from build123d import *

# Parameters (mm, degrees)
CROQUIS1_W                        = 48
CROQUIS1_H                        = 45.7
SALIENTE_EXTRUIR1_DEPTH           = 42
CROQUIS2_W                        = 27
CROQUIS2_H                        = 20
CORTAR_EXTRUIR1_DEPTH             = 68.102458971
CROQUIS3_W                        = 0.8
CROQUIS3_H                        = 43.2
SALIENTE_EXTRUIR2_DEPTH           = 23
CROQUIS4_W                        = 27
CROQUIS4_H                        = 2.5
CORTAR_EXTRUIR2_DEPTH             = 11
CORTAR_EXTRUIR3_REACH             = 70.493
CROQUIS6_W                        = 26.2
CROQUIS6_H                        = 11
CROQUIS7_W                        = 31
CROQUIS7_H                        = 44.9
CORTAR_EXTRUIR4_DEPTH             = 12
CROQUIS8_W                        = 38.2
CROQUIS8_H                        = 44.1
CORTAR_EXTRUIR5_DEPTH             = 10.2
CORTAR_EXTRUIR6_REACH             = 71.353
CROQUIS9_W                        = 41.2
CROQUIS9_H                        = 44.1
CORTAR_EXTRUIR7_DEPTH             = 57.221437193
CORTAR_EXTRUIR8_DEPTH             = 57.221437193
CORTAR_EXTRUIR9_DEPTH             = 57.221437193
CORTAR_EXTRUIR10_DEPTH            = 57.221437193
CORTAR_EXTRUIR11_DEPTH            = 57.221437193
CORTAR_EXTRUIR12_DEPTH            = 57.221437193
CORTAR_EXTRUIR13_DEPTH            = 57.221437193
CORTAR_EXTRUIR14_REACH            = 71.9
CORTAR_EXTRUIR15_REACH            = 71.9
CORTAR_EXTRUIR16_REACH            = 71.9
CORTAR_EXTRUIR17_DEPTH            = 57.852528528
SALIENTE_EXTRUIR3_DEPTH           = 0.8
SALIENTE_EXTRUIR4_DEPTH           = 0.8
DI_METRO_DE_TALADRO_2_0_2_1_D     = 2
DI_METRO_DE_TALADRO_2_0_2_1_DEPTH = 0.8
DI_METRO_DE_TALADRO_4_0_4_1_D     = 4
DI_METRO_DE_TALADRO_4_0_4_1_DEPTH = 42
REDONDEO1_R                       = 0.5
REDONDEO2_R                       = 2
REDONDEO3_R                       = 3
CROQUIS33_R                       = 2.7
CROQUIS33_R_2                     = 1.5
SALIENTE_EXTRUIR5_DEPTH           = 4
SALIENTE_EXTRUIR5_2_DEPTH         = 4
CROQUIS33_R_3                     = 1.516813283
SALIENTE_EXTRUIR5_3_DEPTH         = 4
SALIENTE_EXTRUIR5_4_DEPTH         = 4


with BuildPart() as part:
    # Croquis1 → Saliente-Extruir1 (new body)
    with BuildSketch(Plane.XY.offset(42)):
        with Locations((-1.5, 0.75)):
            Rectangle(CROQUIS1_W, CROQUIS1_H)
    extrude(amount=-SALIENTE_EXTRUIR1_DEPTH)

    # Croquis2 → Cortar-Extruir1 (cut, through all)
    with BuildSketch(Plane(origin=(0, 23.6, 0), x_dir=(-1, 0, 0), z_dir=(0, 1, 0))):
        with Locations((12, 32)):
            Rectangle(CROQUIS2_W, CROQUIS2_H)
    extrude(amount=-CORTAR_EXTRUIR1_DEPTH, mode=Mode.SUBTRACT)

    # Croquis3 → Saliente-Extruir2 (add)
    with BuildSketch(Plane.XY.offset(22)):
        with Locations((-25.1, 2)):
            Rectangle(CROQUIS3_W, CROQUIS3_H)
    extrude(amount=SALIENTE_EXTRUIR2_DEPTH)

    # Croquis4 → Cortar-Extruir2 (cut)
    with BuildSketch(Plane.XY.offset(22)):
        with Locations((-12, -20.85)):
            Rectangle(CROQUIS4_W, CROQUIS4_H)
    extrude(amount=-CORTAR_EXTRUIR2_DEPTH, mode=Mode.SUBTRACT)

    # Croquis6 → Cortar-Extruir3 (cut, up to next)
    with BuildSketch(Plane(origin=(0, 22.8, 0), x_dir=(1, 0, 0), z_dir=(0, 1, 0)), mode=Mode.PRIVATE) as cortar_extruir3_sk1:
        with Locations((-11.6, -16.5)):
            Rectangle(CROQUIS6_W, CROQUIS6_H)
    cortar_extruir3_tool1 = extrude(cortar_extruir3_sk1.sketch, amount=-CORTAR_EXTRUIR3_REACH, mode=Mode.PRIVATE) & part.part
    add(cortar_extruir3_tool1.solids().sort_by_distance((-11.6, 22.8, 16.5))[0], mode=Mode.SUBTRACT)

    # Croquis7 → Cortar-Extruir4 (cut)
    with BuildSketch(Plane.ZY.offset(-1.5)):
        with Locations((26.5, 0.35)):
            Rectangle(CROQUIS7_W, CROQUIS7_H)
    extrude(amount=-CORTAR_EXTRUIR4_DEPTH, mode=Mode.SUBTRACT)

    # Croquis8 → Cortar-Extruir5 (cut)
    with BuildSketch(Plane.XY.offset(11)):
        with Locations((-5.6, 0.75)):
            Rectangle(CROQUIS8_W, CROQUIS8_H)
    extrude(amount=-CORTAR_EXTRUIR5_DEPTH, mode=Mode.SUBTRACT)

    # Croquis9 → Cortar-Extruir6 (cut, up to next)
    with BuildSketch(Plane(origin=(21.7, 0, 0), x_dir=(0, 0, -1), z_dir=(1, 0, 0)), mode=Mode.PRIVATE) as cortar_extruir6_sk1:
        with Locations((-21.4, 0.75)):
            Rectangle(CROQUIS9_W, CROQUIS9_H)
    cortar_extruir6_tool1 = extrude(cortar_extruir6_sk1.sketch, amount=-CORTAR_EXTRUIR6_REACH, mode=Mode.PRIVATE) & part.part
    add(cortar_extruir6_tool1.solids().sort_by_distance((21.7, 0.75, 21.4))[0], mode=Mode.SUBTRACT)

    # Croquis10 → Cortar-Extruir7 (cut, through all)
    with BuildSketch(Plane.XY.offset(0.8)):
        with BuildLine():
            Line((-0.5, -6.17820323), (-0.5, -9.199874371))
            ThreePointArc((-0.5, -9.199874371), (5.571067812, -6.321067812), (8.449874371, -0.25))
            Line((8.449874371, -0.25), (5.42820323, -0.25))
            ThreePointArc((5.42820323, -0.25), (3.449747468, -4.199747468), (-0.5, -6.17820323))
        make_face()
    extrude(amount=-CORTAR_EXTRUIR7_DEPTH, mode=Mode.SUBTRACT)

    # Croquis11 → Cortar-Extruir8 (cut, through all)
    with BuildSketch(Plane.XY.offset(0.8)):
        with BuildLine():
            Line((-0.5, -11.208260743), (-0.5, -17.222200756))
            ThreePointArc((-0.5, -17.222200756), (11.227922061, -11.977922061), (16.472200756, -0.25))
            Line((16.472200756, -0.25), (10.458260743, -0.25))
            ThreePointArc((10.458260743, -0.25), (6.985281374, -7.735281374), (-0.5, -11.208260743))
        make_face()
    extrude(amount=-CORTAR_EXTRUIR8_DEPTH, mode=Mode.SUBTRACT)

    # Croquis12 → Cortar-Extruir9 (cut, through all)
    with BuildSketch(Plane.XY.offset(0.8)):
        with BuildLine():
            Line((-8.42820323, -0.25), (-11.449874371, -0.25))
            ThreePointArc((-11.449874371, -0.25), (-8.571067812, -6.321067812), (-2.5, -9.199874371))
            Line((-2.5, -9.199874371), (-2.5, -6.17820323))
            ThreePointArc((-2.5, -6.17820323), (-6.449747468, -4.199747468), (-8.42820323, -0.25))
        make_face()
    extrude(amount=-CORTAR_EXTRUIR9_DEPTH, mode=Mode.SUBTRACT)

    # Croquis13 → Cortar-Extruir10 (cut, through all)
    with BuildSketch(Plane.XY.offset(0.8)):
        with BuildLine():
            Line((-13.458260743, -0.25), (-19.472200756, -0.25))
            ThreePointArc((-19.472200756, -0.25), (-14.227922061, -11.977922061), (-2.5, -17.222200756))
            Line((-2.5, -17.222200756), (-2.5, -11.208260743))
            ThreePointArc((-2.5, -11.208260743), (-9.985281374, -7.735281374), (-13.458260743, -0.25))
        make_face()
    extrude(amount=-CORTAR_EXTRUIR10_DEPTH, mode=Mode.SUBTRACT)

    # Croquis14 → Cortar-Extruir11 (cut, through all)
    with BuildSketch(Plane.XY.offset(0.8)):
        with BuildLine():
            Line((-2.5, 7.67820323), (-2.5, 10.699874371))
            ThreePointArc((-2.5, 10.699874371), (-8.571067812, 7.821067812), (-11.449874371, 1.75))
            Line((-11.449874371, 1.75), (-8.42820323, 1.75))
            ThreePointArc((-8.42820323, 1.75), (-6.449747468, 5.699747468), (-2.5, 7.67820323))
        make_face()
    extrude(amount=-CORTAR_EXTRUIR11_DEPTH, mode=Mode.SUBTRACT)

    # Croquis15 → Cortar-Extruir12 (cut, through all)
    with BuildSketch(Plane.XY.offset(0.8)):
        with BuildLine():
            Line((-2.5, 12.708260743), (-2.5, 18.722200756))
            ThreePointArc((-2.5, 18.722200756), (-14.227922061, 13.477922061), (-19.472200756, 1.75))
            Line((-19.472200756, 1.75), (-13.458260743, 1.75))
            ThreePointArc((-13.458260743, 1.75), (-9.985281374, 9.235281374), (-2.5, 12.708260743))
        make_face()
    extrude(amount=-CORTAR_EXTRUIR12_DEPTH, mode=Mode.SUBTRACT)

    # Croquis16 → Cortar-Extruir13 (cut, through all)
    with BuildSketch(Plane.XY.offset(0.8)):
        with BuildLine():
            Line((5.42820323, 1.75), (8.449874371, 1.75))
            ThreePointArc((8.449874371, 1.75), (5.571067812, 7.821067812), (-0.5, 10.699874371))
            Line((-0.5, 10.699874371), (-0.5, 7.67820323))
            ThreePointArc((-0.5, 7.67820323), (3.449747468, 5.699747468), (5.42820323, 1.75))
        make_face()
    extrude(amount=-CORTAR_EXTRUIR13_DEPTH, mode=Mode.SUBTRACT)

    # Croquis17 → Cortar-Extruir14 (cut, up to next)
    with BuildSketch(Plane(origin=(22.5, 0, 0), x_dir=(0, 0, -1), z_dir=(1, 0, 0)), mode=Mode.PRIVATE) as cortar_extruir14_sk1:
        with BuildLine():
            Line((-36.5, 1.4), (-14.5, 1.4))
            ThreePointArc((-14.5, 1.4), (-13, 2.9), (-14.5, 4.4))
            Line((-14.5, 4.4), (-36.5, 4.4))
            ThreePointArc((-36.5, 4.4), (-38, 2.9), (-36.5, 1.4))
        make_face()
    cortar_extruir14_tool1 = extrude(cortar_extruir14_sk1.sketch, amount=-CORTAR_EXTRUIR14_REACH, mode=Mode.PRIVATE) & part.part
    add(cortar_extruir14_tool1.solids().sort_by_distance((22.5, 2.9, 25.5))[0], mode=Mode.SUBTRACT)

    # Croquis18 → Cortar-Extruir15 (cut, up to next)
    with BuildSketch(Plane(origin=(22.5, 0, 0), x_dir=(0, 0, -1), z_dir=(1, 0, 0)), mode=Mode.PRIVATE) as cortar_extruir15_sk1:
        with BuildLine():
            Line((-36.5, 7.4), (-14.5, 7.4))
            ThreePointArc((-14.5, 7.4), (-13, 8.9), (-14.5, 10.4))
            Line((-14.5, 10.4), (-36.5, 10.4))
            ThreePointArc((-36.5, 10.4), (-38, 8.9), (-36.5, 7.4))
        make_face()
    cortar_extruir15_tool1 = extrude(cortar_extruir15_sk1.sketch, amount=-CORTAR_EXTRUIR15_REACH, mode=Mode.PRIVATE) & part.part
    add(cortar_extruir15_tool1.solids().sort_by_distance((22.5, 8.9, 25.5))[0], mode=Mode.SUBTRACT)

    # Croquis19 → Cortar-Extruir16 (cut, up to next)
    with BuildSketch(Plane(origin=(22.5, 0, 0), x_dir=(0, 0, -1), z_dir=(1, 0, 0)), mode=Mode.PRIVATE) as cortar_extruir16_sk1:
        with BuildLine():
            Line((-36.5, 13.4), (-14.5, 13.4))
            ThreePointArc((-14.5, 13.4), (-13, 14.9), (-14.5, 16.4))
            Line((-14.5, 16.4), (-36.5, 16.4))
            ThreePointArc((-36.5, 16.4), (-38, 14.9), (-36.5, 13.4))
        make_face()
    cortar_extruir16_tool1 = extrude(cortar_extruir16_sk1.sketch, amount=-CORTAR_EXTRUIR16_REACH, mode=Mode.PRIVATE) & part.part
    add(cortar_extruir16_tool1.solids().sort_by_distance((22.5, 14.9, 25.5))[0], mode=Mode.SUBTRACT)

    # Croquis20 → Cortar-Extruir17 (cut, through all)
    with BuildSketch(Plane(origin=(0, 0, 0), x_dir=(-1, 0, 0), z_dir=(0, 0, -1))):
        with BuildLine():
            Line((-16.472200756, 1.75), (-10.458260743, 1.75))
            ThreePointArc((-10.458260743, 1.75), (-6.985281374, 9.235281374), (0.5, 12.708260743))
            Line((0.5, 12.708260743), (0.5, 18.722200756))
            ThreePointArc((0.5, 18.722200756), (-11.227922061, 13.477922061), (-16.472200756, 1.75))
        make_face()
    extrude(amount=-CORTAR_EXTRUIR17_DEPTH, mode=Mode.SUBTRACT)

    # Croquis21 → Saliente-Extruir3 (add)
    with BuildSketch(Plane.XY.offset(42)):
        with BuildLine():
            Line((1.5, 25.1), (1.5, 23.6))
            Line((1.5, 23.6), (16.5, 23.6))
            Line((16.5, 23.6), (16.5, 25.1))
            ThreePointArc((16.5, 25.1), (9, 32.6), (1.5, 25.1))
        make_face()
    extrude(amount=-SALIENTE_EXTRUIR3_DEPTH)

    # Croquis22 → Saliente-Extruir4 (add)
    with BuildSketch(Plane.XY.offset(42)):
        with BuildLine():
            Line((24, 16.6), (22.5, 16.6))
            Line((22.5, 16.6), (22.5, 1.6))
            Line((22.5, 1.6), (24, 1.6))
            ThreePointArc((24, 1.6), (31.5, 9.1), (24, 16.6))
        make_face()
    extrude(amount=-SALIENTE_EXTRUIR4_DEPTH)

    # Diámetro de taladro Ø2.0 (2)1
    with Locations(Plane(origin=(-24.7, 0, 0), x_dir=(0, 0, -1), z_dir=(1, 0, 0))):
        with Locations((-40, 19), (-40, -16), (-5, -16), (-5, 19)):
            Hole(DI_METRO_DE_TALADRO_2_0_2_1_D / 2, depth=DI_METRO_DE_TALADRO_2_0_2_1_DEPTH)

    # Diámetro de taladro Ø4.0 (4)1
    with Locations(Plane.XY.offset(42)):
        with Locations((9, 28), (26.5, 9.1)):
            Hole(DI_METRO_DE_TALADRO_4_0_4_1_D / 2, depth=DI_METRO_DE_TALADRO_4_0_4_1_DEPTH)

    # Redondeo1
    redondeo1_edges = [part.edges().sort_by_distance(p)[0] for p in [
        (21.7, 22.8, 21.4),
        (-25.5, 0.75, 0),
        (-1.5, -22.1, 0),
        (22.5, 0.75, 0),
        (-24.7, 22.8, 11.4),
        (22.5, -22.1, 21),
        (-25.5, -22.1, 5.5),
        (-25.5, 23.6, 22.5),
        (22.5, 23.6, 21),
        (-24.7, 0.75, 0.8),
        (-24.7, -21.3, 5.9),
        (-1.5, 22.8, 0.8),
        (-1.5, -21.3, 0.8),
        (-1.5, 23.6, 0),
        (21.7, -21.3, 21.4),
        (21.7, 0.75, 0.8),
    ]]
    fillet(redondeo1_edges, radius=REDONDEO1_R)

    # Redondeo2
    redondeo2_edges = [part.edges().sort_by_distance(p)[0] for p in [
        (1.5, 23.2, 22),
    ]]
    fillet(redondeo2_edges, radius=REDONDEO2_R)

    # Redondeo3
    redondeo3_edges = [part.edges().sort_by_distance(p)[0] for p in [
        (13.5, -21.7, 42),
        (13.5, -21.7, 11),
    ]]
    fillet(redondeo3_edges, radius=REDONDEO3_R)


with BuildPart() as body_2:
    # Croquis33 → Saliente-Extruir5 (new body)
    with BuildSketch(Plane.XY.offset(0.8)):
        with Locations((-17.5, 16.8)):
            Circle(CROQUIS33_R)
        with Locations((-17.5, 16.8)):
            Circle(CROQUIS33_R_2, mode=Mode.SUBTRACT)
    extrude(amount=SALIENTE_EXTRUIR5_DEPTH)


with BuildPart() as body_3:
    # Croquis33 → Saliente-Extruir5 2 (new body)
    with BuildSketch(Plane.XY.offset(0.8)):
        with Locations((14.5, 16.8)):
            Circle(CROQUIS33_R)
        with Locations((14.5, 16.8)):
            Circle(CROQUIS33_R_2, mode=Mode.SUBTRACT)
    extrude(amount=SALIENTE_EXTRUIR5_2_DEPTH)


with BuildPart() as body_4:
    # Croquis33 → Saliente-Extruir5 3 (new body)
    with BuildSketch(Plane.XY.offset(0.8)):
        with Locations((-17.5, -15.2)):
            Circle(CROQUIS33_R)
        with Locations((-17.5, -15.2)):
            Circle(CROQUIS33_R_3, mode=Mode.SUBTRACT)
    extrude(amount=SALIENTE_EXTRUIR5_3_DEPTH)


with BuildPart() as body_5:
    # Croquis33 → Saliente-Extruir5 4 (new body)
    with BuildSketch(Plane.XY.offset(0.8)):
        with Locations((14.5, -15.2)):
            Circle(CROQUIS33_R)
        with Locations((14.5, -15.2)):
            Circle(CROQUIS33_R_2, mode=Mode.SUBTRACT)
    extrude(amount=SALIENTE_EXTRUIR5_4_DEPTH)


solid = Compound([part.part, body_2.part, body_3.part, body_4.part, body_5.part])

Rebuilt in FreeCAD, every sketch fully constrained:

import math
import FreeCAD as App
import Part
import Sketcher

V = App.Vector
Q = App.Units.Quantity


def edges_at(feature, points):
    """Names of the edges that pass closest to the given points."""
    edges = feature.Shape.Edges
    near = lambda p: min(range(len(edges)), key=lambda i: edges[i].distToShape(Part.Vertex(*p))[0])
    return sorted({f"Edge{near(p) + 1}" for p in points})

doc = App.newDocument("Part")
body = doc.addObject("PartDesign::Body", "Body")

# Sketch on XY plane
sketch1 = body.newObject("Sketcher::SketchObject", "Sketch")
sketch1.AttachmentSupport = (doc.getObject("XY_Plane"), [""])
sketch1.MapMode = "FlatFace"
sketch1.AttachmentOffset = App.Placement(V(0, 0, 42), App.Rotation())
sketch1.addGeometry([
    Part.LineSegment(V(-25.5, 23.6, 0), V(-25.5, -22.1, 0)),
    Part.LineSegment(V(-25.5, -22.1, 0), V(22.5, -22.1, 0)),
    Part.LineSegment(V(22.5, -22.1, 0), V(22.5, 23.6, 0)),
    Part.LineSegment(V(22.5, 23.6, 0), V(-25.5, 23.6, 0)),
], False)
sketch1.addConstraint([
    Sketcher.Constraint("Coincident", 0, 2, 1, 1),
    Sketcher.Constraint("Coincident", 1, 2, 2, 1),
    Sketcher.Constraint("Coincident", 2, 2, 3, 1),
    Sketcher.Constraint("Coincident", 3, 2, 0, 1),
    Sketcher.Constraint("Vertical", 0),
    Sketcher.Constraint("Horizontal", 1),
    Sketcher.Constraint("Vertical", 2),
    Sketcher.Constraint("Horizontal", 3),
    Sketcher.Constraint("DistanceX", 1, 1, 1, 2, Q("48 mm")),
    Sketcher.Constraint("DistanceY", 0, 2, 0, 1, Q("45.7 mm")),
    Sketcher.Constraint("DistanceX", 0, 2, -1, 1, Q("25.5 mm")),
    Sketcher.Constraint("DistanceY", 0, 2, -1, 1, Q("22.1 mm")),
])
pad1 = body.newObject("PartDesign::Pad", "Pad")
pad1.Profile = sketch1
pad1.Length = 42
pad1.Reversed = True

# Sketch on XZ plane
sketch2 = body.newObject("Sketcher::SketchObject", "Sketch001")
sketch2.AttachmentSupport = (doc.getObject("XZ_Plane"), [""])
sketch2.MapMode = "FlatFace"
sketch2.AttachmentOffset = App.Placement(V(0, 0, -23.6), App.Rotation())
sketch2.addGeometry([
    Part.LineSegment(V(1.5, 42, 0), V(1.5, 22, 0)),
    Part.LineSegment(V(1.5, 22, 0), V(-25.5, 22, 0)),
    Part.LineSegment(V(-25.5, 22, 0), V(-25.5, 42, 0)),
    Part.LineSegment(V(-25.5, 42, 0), V(1.5, 42, 0)),
], False)
sketch2.addConstraint([
    Sketcher.Constraint("Coincident", 0, 2, 1, 1),
    Sketcher.Constraint("Coincident", 1, 2, 2, 1),
    Sketcher.Constraint("Coincident", 2, 2, 3, 1),
    Sketcher.Constraint("Coincident", 3, 2, 0, 1),
    Sketcher.Constraint("Vertical", 0),
    Sketcher.Constraint("Horizontal", 1),
    Sketcher.Constraint("Vertical", 2),
    Sketcher.Constraint("Horizontal", 3),
    Sketcher.Constraint("DistanceX", 1, 2, 1, 1, Q("27 mm")),
    Sketcher.Constraint("DistanceY", 0, 2, 0, 1, Q("20 mm")),
    Sketcher.Constraint("DistanceY", -1, 1, 0, 2, Q("22 mm")),
    Sketcher.Constraint("DistanceX", -1, 1, 0, 2, Q("1.5 mm")),
])
pocket1 = body.newObject("PartDesign::Pocket", "Pocket")
pocket1.Profile = sketch2
pocket1.Type = "ThroughAll"
pocket1.Reversed = True

# Sketch on XY plane
sketch3 = body.newObject("Sketcher::SketchObject", "Sketch002")
sketch3.AttachmentSupport = (doc.getObject("XY_Plane"), [""])
sketch3.MapMode = "FlatFace"
sketch3.AttachmentOffset = App.Placement(V(0, 0, 22), App.Rotation())
sketch3.addGeometry([
    Part.LineSegment(V(-25.5, 23.6, 0), V(-25.5, -19.6, 0)),
    Part.LineSegment(V(-25.5, -19.6, 0), V(-24.7, -19.6, 0)),
    Part.LineSegment(V(-24.7, -19.6, 0), V(-24.7, 23.6, 0)),
    Part.LineSegment(V(-24.7, 23.6, 0), V(-25.5, 23.6, 0)),
], False)
sketch3.addConstraint([
    Sketcher.Constraint("Coincident", 0, 2, 1, 1),
    Sketcher.Constraint("Coincident", 1, 2, 2, 1),
    Sketcher.Constraint("Coincident", 2, 2, 3, 1),
    Sketcher.Constraint("Coincident", 3, 2, 0, 1),
    Sketcher.Constraint("Vertical", 0),
    Sketcher.Constraint("Horizontal", 1),
    Sketcher.Constraint("Vertical", 2),
    Sketcher.Constraint("Horizontal", 3),
    Sketcher.Constraint("DistanceX", 1, 1, 1, 2, Q("0.8 mm")),
    Sketcher.Constraint("DistanceY", 0, 2, 0, 1, Q("43.2 mm")),
    Sketcher.Constraint("DistanceX", 0, 2, -1, 1, Q("25.5 mm")),
    Sketcher.Constraint("DistanceY", 0, 2, -1, 1, Q("19.6 mm")),
])
pad2 = body.newObject("PartDesign::Pad", "Pad001")
pad2.Profile = sketch3
pad2.Length = 23

# Sketch on XY plane
sketch4 = body.newObject("Sketcher::SketchObject", "Sketch003")
sketch4.AttachmentSupport = (doc.getObject("XY_Plane"), [""])
sketch4.MapMode = "FlatFace"
sketch4.AttachmentOffset = App.Placement(V(0, 0, 22), App.Rotation())
sketch4.addGeometry([
    Part.LineSegment(V(-25.5, -19.6, 0), V(-25.5, -22.1, 0)),
    Part.LineSegment(V(-25.5, -22.1, 0), V(1.5, -22.1, 0)),
    Part.LineSegment(V(1.5, -22.1, 0), V(1.5, -19.6, 0)),
    Part.LineSegment(V(1.5, -19.6, 0), V(-25.5, -19.6, 0)),
], False)
sketch4.addConstraint([
    Sketcher.Constraint("Coincident", 0, 2, 1, 1),
    Sketcher.Constraint("Coincident", 1, 2, 2, 1),
    Sketcher.Constraint("Coincident", 2, 2, 3, 1),
    Sketcher.Constraint("Coincident", 3, 2, 0, 1),
    Sketcher.Constraint("Vertical", 0),
    Sketcher.Constraint("Horizontal", 1),
    Sketcher.Constraint("Vertical", 2),
    Sketcher.Constraint("Horizontal", 3),
    Sketcher.Constraint("DistanceX", 1, 1, 1, 2, Q("27 mm")),
    Sketcher.Constraint("DistanceY", 0, 2, 0, 1, Q("2.5 mm")),
    Sketcher.Constraint("DistanceX", 0, 2, -1, 1, Q("25.5 mm")),
    Sketcher.Constraint("DistanceY", 0, 2, -1, 1, Q("22.1 mm")),
])
pocket2 = body.newObject("PartDesign::Pocket", "Pocket001")
pocket2.Profile = sketch4
pocket2.Length = 11

# Sketch on XZ plane
sketch5 = body.newObject("Sketcher::SketchObject", "Sketch004")
sketch5.AttachmentSupport = (doc.getObject("XZ_Plane"), [""])
sketch5.MapMode = "FlatFace"
sketch5.AttachmentOffset = App.Placement(V(0, 0, -22.8), App.Rotation())
sketch5.addGeometry([
    Part.LineSegment(V(-24.7, 11, 0), V(-24.7, 22, 0)),
    Part.LineSegment(V(-24.7, 22, 0), V(1.5, 22, 0)),
    Part.LineSegment(V(1.5, 22, 0), V(1.5, 11, 0)),
    Part.LineSegment(V(1.5, 11, 0), V(-24.7, 11, 0)),
], False)
sketch5.addConstraint([
    Sketcher.Constraint("Coincident", 0, 2, 1, 1),
    Sketcher.Constraint("Coincident", 1, 2, 2, 1),
    Sketcher.Constraint("Coincident", 2, 2, 3, 1),
    Sketcher.Constraint("Coincident", 3, 2, 0, 1),
    Sketcher.Constraint("Vertical", 0),
    Sketcher.Constraint("Horizontal", 1),
    Sketcher.Constraint("Vertical", 2),
    Sketcher.Constraint("Horizontal", 3),
    Sketcher.Constraint("DistanceY", 0, 1, 0, 2, Q("11 mm")),
    Sketcher.Constraint("DistanceX", 1, 1, 1, 2, Q("26.2 mm")),
    Sketcher.Constraint("DistanceY", -1, 1, 0, 2, Q("22 mm")),
    Sketcher.Constraint("DistanceX", 0, 2, -1, 1, Q("24.7 mm")),
])
pocket3 = body.newObject("PartDesign::Pocket", "Pocket002")
pocket3.Profile = sketch5
pocket3.Type = "UpToFirst"
pocket3.Reversed = True

# Sketch on YZ plane
sketch6 = body.newObject("Sketcher::SketchObject", "Sketch005")
sketch6.AttachmentSupport = (doc.getObject("YZ_Plane"), [""])
sketch6.MapMode = "FlatFace"
sketch6.AttachmentOffset = App.Placement(V(0, 0, 1.5), App.Rotation())
sketch6.addGeometry([
    Part.LineSegment(V(22.8, 11, 0), V(-22.1, 11, 0)),
    Part.LineSegment(V(-22.1, 11, 0), V(-22.1, 42, 0)),
    Part.LineSegment(V(-22.1, 42, 0), V(22.8, 42, 0)),
    Part.LineSegment(V(22.8, 42, 0), V(22.8, 11, 0)),
], False)
sketch6.addConstraint([
    Sketcher.Constraint("Coincident", 0, 2, 1, 1),
    Sketcher.Constraint("Coincident", 1, 2, 2, 1),
    Sketcher.Constraint("Coincident", 2, 2, 3, 1),
    Sketcher.Constraint("Coincident", 3, 2, 0, 1),
    Sketcher.Constraint("Horizontal", 0),
    Sketcher.Constraint("Vertical", 1),
    Sketcher.Constraint("Horizontal", 2),
    Sketcher.Constraint("Vertical", 3),
    Sketcher.Constraint("DistanceY", 1, 1, 1, 2, Q("31 mm")),
    Sketcher.Constraint("DistanceX", 0, 2, 0, 1, Q("44.9 mm")),
    Sketcher.Constraint("DistanceY", -1, 1, 0, 2, Q("11 mm")),
    Sketcher.Constraint("DistanceX", 0, 2, -1, 1, Q("22.1 mm")),
])
pocket4 = body.newObject("PartDesign::Pocket", "Pocket003")
pocket4.Profile = sketch6
pocket4.Length = 12
pocket4.Reversed = True

# Sketch on XY plane
sketch7 = body.newObject("Sketcher::SketchObject", "Sketch006")
sketch7.AttachmentSupport = (doc.getObject("XY_Plane"), [""])
sketch7.MapMode = "FlatFace"
sketch7.AttachmentOffset = App.Placement(V(0, 0, 11), App.Rotation())
sketch7.addGeometry([
    Part.LineSegment(V(-24.7, 22.8, 0), V(-24.7, -21.3, 0)),
    Part.LineSegment(V(-24.7, -21.3, 0), V(13.5, -21.3, 0)),
    Part.LineSegment(V(13.5, -21.3, 0), V(13.5, 22.8, 0)),
    Part.LineSegment(V(13.5, 22.8, 0), V(-24.7, 22.8, 0)),
], False)
sketch7.addConstraint([
    Sketcher.Constraint("Coincident", 0, 2, 1, 1),
    Sketcher.Constraint("Coincident", 1, 2, 2, 1),
    Sketcher.Constraint("Coincident", 2, 2, 3, 1),
    Sketcher.Constraint("Coincident", 3, 2, 0, 1),
    Sketcher.Constraint("Vertical", 0),
    Sketcher.Constraint("Horizontal", 1),
    Sketcher.Constraint("Vertical", 2),
    Sketcher.Constraint("Horizontal", 3),
    Sketcher.Constraint("DistanceX", 1, 1, 1, 2, Q("38.2 mm")),
    Sketcher.Constraint("DistanceY", 0, 2, 0, 1, Q("44.1 mm")),
    Sketcher.Constraint("DistanceX", 0, 2, -1, 1, Q("24.7 mm")),
    Sketcher.Constraint("DistanceY", 0, 2, -1, 1, Q("21.3 mm")),
])
pocket5 = body.newObject("PartDesign::Pocket", "Pocket004")
pocket5.Profile = sketch7
pocket5.Length = 10.2

# Sketch on YZ plane
sketch8 = body.newObject("Sketcher::SketchObject", "Sketch007")
sketch8.AttachmentSupport = (doc.getObject("YZ_Plane"), [""])
sketch8.MapMode = "FlatFace"
sketch8.AttachmentOffset = App.Placement(V(0, 0, 21.7), App.Rotation())
sketch8.addGeometry([
    Part.LineSegment(V(22.8, 42, 0), V(-21.3, 42, 0)),
    Part.LineSegment(V(-21.3, 42, 0), V(-21.3, 0.8, 0)),
    Part.LineSegment(V(-21.3, 0.8, 0), V(22.8, 0.8, 0)),
    Part.LineSegment(V(22.8, 0.8, 0), V(22.8, 42, 0)),
], False)
sketch8.addConstraint([
    Sketcher.Constraint("Coincident", 0, 2, 1, 1),
    Sketcher.Constraint("Coincident", 1, 2, 2, 1),
    Sketcher.Constraint("Coincident", 2, 2, 3, 1),
    Sketcher.Constraint("Coincident", 3, 2, 0, 1),
    Sketcher.Constraint("Horizontal", 0),
    Sketcher.Constraint("Vertical", 1),
    Sketcher.Constraint("Horizontal", 2),
    Sketcher.Constraint("Vertical", 3),
    Sketcher.Constraint("DistanceX", 0, 2, 0, 1, Q("44.1 mm")),
    Sketcher.Constraint("DistanceY", 1, 2, 1, 1, Q("41.2 mm")),
    Sketcher.Constraint("DistanceY", -1, 1, 0, 2, Q("42 mm")),
    Sketcher.Constraint("DistanceX", 0, 2, -1, 1, Q("21.3 mm")),
])
pocket6 = body.newObject("PartDesign::Pocket", "Pocket005")
pocket6.Profile = sketch8
pocket6.Type = "UpToFirst"

# Sketch on XY plane
sketch9 = body.newObject("Sketcher::SketchObject", "Sketch008")
sketch9.AttachmentSupport = (doc.getObject("XY_Plane"), [""])
sketch9.MapMode = "FlatFace"
sketch9.AttachmentOffset = App.Placement(V(0, 0, 0.8), App.Rotation())
sketch9.addGeometry([
    Part.LineSegment(V(-0.5, -6.178203, 0), V(-0.5, -9.199874, 0)),
    Part.ArcOfCircle(Part.Circle(V(-1.5, 0.75, 0), V(0, 0, 1), 10), math.radians(-84.26083), math.radians(-5.73917)),
    Part.LineSegment(V(8.449874, -0.25, 0), V(5.428203, -0.25, 0)),
    Part.ArcOfCircle(Part.Circle(V(-1.5, 0.75, 0), V(0, 0, 1), 7), math.radians(-81.786789), math.radians(-8.213211)),
], False)
sketch9.addConstraint([
    Sketcher.Constraint("Coincident", 0, 2, 1, 1),
    Sketcher.Constraint("Coincident", 1, 2, 2, 1),
    Sketcher.Constraint("Coincident", 2, 2, 3, 2),
    Sketcher.Constraint("Coincident", 3, 1, 0, 1),
    Sketcher.Constraint("Vertical", 0),
    Sketcher.Constraint("Horizontal", 2),
    Sketcher.Constraint("Coincident", 3, 3, 1, 3),
    Sketcher.Constraint("Equal", 2, 0),
    Sketcher.Constraint("Radius", 1, Q("10 mm")),
    Sketcher.Constraint("Radius", 3, Q("7 mm")),
    Sketcher.Constraint("DistanceX", 1, 3, 0, 2, Q("1 mm")),
    Sketcher.Constraint("DistanceX", 1, 3, -1, 1, Q("1.5 mm")),
    Sketcher.Constraint("DistanceY", -1, 1, 1, 3, Q("0.75 mm")),
])
pocket7 = body.newObject("PartDesign::Pocket", "Pocket006")
pocket7.Profile = sketch9
pocket7.Type = "ThroughAll"

# Sketch on XY plane
sketch10 = body.newObject("Sketcher::SketchObject", "Sketch009")
sketch10.AttachmentSupport = (doc.getObject("XY_Plane"), [""])
sketch10.MapMode = "FlatFace"
sketch10.AttachmentOffset = App.Placement(V(0, 0, 0.8), App.Rotation())
sketch10.addGeometry([
    Part.LineSegment(V(-0.5, -11.208261, 0), V(-0.5, -17.222201, 0)),
    Part.ArcOfCircle(Part.Circle(V(-1.5, 0.75, 0), V(0, 0, 1), 18), math.radians(-86.815261), math.radians(-3.184739)),
    Part.LineSegment(V(16.472201, -0.25, 0), V(10.458261, -0.25, 0)),
    Part.ArcOfCircle(Part.Circle(V(-1.5, 0.75, 0), V(0, 0, 1), 12), math.radians(-85.219808), math.radians(-4.780192)),
], False)
sketch10.addConstraint([
    Sketcher.Constraint("Coincident", 0, 2, 1, 1),
    Sketcher.Constraint("Coincident", 1, 2, 2, 1),
    Sketcher.Constraint("Coincident", 2, 2, 3, 2),
    Sketcher.Constraint("Coincident", 3, 1, 0, 1),
    Sketcher.Constraint("Vertical", 0),
    Sketcher.Constraint("Horizontal", 2),
    Sketcher.Constraint("Coincident", 3, 3, 1, 3),
    Sketcher.Constraint("Equal", 2, 0),
    Sketcher.Constraint("Radius", 1, Q("18 mm")),
    Sketcher.Constraint("Radius", 3, Q("12 mm")),
    Sketcher.Constraint("DistanceX", 3, 3, 0, 2, Q("1 mm")),
    Sketcher.Constraint("DistanceX", 1, 3, -1, 1, Q("1.5 mm")),
    Sketcher.Constraint("DistanceY", -1, 1, 1, 3, Q("0.75 mm")),
])
pocket8 = body.newObject("PartDesign::Pocket", "Pocket007")
pocket8.Profile = sketch10
pocket8.Type = "ThroughAll"

# Sketch on XY plane
sketch11 = body.newObject("Sketcher::SketchObject", "Sketch010")
sketch11.AttachmentSupport = (doc.getObject("XY_Plane"), [""])
sketch11.MapMode = "FlatFace"
sketch11.AttachmentOffset = App.Placement(V(0, 0, 0.8), App.Rotation())
sketch11.addGeometry([
    Part.LineSegment(V(-8.428203, -0.25, 0), V(-11.449874, -0.25, 0)),
    Part.ArcOfCircle(Part.Circle(V(-1.5, 0.75, 0), V(0, 0, 1), 10), math.radians(-174.26083), math.radians(-95.73917)),
    Part.LineSegment(V(-2.5, -9.199874, 0), V(-2.5, -6.178203, 0)),
    Part.ArcOfCircle(Part.Circle(V(-1.5, 0.75, 0), V(0, 0, 1), 7), math.radians(-171.786789), math.radians(-98.213211)),
], False)
sketch11.addConstraint([
    Sketcher.Constraint("Coincident", 0, 2, 1, 1),
    Sketcher.Constraint("Coincident", 1, 2, 2, 1),
    Sketcher.Constraint("Coincident", 2, 2, 3, 2),
    Sketcher.Constraint("Coincident", 3, 1, 0, 1),
    Sketcher.Constraint("Horizontal", 0),
    Sketcher.Constraint("Vertical", 2),
    Sketcher.Constraint("Coincident", 3, 3, 1, 3),
    Sketcher.Constraint("Equal", 0, 2),
    Sketcher.Constraint("Radius", 1, Q("10 mm")),
    Sketcher.Constraint("Radius", 3, Q("7 mm")),
    Sketcher.Constraint("DistanceY", 0, 2, 1, 3, Q("1 mm")),
    Sketcher.Constraint("DistanceX", 1, 3, -1, 1, Q("1.5 mm")),
    Sketcher.Constraint("DistanceY", -1, 1, 1, 3, Q("0.75 mm")),
])
pocket9 = body.newObject("PartDesign::Pocket", "Pocket008")
pocket9.Profile = sketch11
pocket9.Type = "ThroughAll"

# Sketch on XY plane
sketch12 = body.newObject("Sketcher::SketchObject", "Sketch011")
sketch12.AttachmentSupport = (doc.getObject("XY_Plane"), [""])
sketch12.MapMode = "FlatFace"
sketch12.AttachmentOffset = App.Placement(V(0, 0, 0.8), App.Rotation())
sketch12.addGeometry([
    Part.LineSegment(V(-13.458261, -0.25, 0), V(-19.472201, -0.25, 0)),
    Part.ArcOfCircle(Part.Circle(V(-1.5, 0.75, 0), V(0, 0, 1), 18), math.radians(-176.815261), math.radians(-93.184739)),
    Part.LineSegment(V(-2.5, -17.222201, 0), V(-2.5, -11.208261, 0)),
    Part.ArcOfCircle(Part.Circle(V(-1.5, 0.75, 0), V(0, 0, 1), 12), math.radians(-175.219808), math.radians(-94.780192)),
], False)
sketch12.addConstraint([
    Sketcher.Constraint("Coincident", 0, 2, 1, 1),
    Sketcher.Constraint("Coincident", 1, 2, 2, 1),
    Sketcher.Constraint("Coincident", 2, 2, 3, 2),
    Sketcher.Constraint("Coincident", 3, 1, 0, 1),
    Sketcher.Constraint("Horizontal", 0),
    Sketcher.Constraint("Vertical", 2),
    Sketcher.Constraint("Coincident", 3, 3, 1, 3),
    Sketcher.Constraint("Equal", 0, 2),
    Sketcher.Constraint("Radius", 1, Q("18 mm")),
    Sketcher.Constraint("Radius", 3, Q("12 mm")),
    Sketcher.Constraint("DistanceY", 0, 2, 3, 3, Q("1 mm")),
    Sketcher.Constraint("DistanceX", 1, 3, -1, 1, Q("1.5 mm")),
    Sketcher.Constraint("DistanceY", -1, 1, 1, 3, Q("0.75 mm")),
])
pocket10 = body.newObject("PartDesign::Pocket", "Pocket009")
pocket10.Profile = sketch12
pocket10.Type = "ThroughAll"

# Sketch on XY plane
sketch13 = body.newObject("Sketcher::SketchObject", "Sketch012")
sketch13.AttachmentSupport = (doc.getObject("XY_Plane"), [""])
sketch13.MapMode = "FlatFace"
sketch13.AttachmentOffset = App.Placement(V(0, 0, 0.8), App.Rotation())
sketch13.addGeometry([
    Part.LineSegment(V(-2.5, 7.678203, 0), V(-2.5, 10.699874, 0)),
    Part.ArcOfCircle(Part.Circle(V(-1.5, 0.75, 0), V(0, 0, 1), 10), math.radians(95.73917), math.radians(174.26083)),
    Part.LineSegment(V(-11.449874, 1.75, 0), V(-8.428203, 1.75, 0)),
    Part.ArcOfCircle(Part.Circle(V(-1.5, 0.75, 0), V(0, 0, 1), 7), math.radians(98.213211), math.radians(171.786789)),
], False)
sketch13.addConstraint([
    Sketcher.Constraint("Coincident", 0, 2, 1, 1),
    Sketcher.Constraint("Coincident", 1, 2, 2, 1),
    Sketcher.Constraint("Coincident", 2, 2, 3, 2),
    Sketcher.Constraint("Coincident", 3, 1, 0, 1),
    Sketcher.Constraint("Vertical", 0),
    Sketcher.Constraint("Horizontal", 2),
    Sketcher.Constraint("Coincident", 3, 3, 1, 3),
    Sketcher.Constraint("Equal", 2, 0),
    Sketcher.Constraint("Radius", 1, Q("10 mm")),
    Sketcher.Constraint("Radius", 3, Q("7 mm")),
    Sketcher.Constraint("DistanceX", 0, 2, 1, 3, Q("1 mm")),
    Sketcher.Constraint("DistanceX", 1, 3, -1, 1, Q("1.5 mm")),
    Sketcher.Constraint("DistanceY", -1, 1, 1, 3, Q("0.75 mm")),
])
pocket11 = body.newObject("PartDesign::Pocket", "Pocket010")
pocket11.Profile = sketch13
pocket11.Type = "ThroughAll"

# Sketch on XY plane
sketch14 = body.newObject("Sketcher::SketchObject", "Sketch013")
sketch14.AttachmentSupport = (doc.getObject("XY_Plane"), [""])
sketch14.MapMode = "FlatFace"
sketch14.AttachmentOffset = App.Placement(V(0, 0, 0.8), App.Rotation())
sketch14.addGeometry([
    Part.LineSegment(V(-2.5, 12.708261, 0), V(-2.5, 18.722201, 0)),
    Part.ArcOfCircle(Part.Circle(V(-1.5, 0.75, 0), V(0, 0, 1), 18), math.radians(93.184739), math.radians(176.815261)),
    Part.LineSegment(V(-19.472201, 1.75, 0), V(-13.458261, 1.75, 0)),
    Part.ArcOfCircle(Part.Circle(V(-1.5, 0.75, 0), V(0, 0, 1), 12), math.radians(94.780192), math.radians(175.219808)),
], False)
sketch14.addConstraint([
    Sketcher.Constraint("Coincident", 0, 2, 1, 1),
    Sketcher.Constraint("Coincident", 1, 2, 2, 1),
    Sketcher.Constraint("Coincident", 2, 2, 3, 2),
    Sketcher.Constraint("Coincident", 3, 1, 0, 1),
    Sketcher.Constraint("Vertical", 0),
    Sketcher.Constraint("Horizontal", 2),
    Sketcher.Constraint("Coincident", 3, 3, 1, 3),
    Sketcher.Constraint("Equal", 2, 0),
    Sketcher.Constraint("Radius", 1, Q("18 mm")),
    Sketcher.Constraint("Radius", 3, Q("12 mm")),
    Sketcher.Constraint("DistanceX", 0, 2, 3, 3, Q("1 mm")),
    Sketcher.Constraint("DistanceX", 1, 3, -1, 1, Q("1.5 mm")),
    Sketcher.Constraint("DistanceY", -1, 1, 1, 3, Q("0.75 mm")),
])
pocket12 = body.newObject("PartDesign::Pocket", "Pocket011")
pocket12.Profile = sketch14
pocket12.Type = "ThroughAll"

# Sketch on XY plane
sketch15 = body.newObject("Sketcher::SketchObject", "Sketch014")
sketch15.AttachmentSupport = (doc.getObject("XY_Plane"), [""])
sketch15.MapMode = "FlatFace"
sketch15.AttachmentOffset = App.Placement(V(0, 0, 0.8), App.Rotation())
sketch15.addGeometry([
    Part.LineSegment(V(5.428203, 1.75, 0), V(8.449874, 1.75, 0)),
    Part.ArcOfCircle(Part.Circle(V(-1.5, 0.75, 0), V(0, 0, 1), 10), math.radians(5.73917), math.radians(84.26083)),
    Part.LineSegment(V(-0.5, 10.699874, 0), V(-0.5, 7.678203, 0)),
    Part.ArcOfCircle(Part.Circle(V(-1.5, 0.75, 0), V(0, 0, 1), 7), math.radians(8.213211), math.radians(81.786789)),
], False)
sketch15.addConstraint([
    Sketcher.Constraint("Coincident", 0, 2, 1, 1),
    Sketcher.Constraint("Coincident", 1, 2, 2, 1),
    Sketcher.Constraint("Coincident", 2, 2, 3, 2),
    Sketcher.Constraint("Coincident", 3, 1, 0, 1),
    Sketcher.Constraint("Horizontal", 0),
    Sketcher.Constraint("Vertical", 2),
    Sketcher.Constraint("Coincident", 3, 3, 1, 3),
    Sketcher.Constraint("Equal", 0, 2),
    Sketcher.Constraint("Radius", 1, Q("10 mm")),
    Sketcher.Constraint("Radius", 3, Q("7 mm")),
    Sketcher.Constraint("DistanceY", 1, 3, 0, 2, Q("1 mm")),
    Sketcher.Constraint("DistanceX", 1, 3, -1, 1, Q("1.5 mm")),
    Sketcher.Constraint("DistanceY", -1, 1, 1, 3, Q("0.75 mm")),
])
pocket13 = body.newObject("PartDesign::Pocket", "Pocket012")
pocket13.Profile = sketch15
pocket13.Type = "ThroughAll"

# Sketch on YZ plane
sketch16 = body.newObject("Sketcher::SketchObject", "Sketch015")
sketch16.AttachmentSupport = (doc.getObject("YZ_Plane"), [""])
sketch16.MapMode = "FlatFace"
sketch16.AttachmentOffset = App.Placement(V(0, 0, 22.5), App.Rotation())
sketch16.addGeometry([
    Part.LineSegment(V(1.4, 36.5, 0), V(1.4, 14.5, 0)),
    Part.ArcOfCircle(Part.Circle(V(2.9, 14.5, 0), V(0, 0, 1), 1.5), math.radians(180), math.radians(360)),
    Part.LineSegment(V(4.4, 14.5, 0), V(4.4, 36.5, 0)),
    Part.ArcOfCircle(Part.Circle(V(2.9, 36.5, 0), V(0, 0, 1), 1.5), math.radians(0), math.radians(180)),
], False)
sketch16.addConstraint([
    Sketcher.Constraint("Tangent", 0, 2, 1, 1),
    Sketcher.Constraint("Tangent", 1, 2, 2, 1),
    Sketcher.Constraint("Tangent", 2, 2, 3, 1),
    Sketcher.Constraint("Tangent", 3, 2, 0, 1),
    Sketcher.Constraint("Vertical", 0),
    Sketcher.Constraint("Vertical", 2),
    Sketcher.Constraint("Radius", 1, Q("1.5 mm")),
    Sketcher.Constraint("DistanceY", 0, 2, 0, 1, Q("22 mm")),
    Sketcher.Constraint("DistanceX", -1, 1, 1, 3, Q("2.9 mm")),
    Sketcher.Constraint("DistanceY", -1, 1, 1, 3, Q("14.5 mm")),
])
pocket14 = body.newObject("PartDesign::Pocket", "Pocket013")
pocket14.Profile = sketch16
pocket14.Type = "UpToFirst"

# Sketch on YZ plane
sketch17 = body.newObject("Sketcher::SketchObject", "Sketch016")
sketch17.AttachmentSupport = (doc.getObject("YZ_Plane"), [""])
sketch17.MapMode = "FlatFace"
sketch17.AttachmentOffset = App.Placement(V(0, 0, 22.5), App.Rotation())
sketch17.addGeometry([
    Part.LineSegment(V(7.4, 36.5, 0), V(7.4, 14.5, 0)),
    Part.ArcOfCircle(Part.Circle(V(8.9, 14.5, 0), V(0, 0, 1), 1.5), math.radians(180), math.radians(360)),
    Part.LineSegment(V(10.4, 14.5, 0), V(10.4, 36.5, 0)),
    Part.ArcOfCircle(Part.Circle(V(8.9, 36.5, 0), V(0, 0, 1), 1.5), math.radians(0), math.radians(180)),
], False)
sketch17.addConstraint([
    Sketcher.Constraint("Tangent", 0, 2, 1, 1),
    Sketcher.Constraint("Tangent", 1, 2, 2, 1),
    Sketcher.Constraint("Tangent", 2, 2, 3, 1),
    Sketcher.Constraint("Tangent", 3, 2, 0, 1),
    Sketcher.Constraint("Vertical", 0),
    Sketcher.Constraint("Vertical", 2),
    Sketcher.Constraint("Radius", 1, Q("1.5 mm")),
    Sketcher.Constraint("DistanceY", 0, 2, 0, 1, Q("22 mm")),
    Sketcher.Constraint("DistanceX", -1, 1, 1, 3, Q("8.9 mm")),
    Sketcher.Constraint("DistanceY", -1, 1, 1, 3, Q("14.5 mm")),
])
pocket15 = body.newObject("PartDesign::Pocket", "Pocket014")
pocket15.Profile = sketch17
pocket15.Type = "UpToFirst"

# Sketch on YZ plane
sketch18 = body.newObject("Sketcher::SketchObject", "Sketch017")
sketch18.AttachmentSupport = (doc.getObject("YZ_Plane"), [""])
sketch18.MapMode = "FlatFace"
sketch18.AttachmentOffset = App.Placement(V(0, 0, 22.5), App.Rotation())
sketch18.addGeometry([
    Part.LineSegment(V(13.4, 36.5, 0), V(13.4, 14.5, 0)),
    Part.ArcOfCircle(Part.Circle(V(14.9, 14.5, 0), V(0, 0, 1), 1.5), math.radians(180), math.radians(360)),
    Part.LineSegment(V(16.4, 14.5, 0), V(16.4, 36.5, 0)),
    Part.ArcOfCircle(Part.Circle(V(14.9, 36.5, 0), V(0, 0, 1), 1.5), math.radians(0), math.radians(180)),
], False)
sketch18.addConstraint([
    Sketcher.Constraint("Tangent", 0, 2, 1, 1),
    Sketcher.Constraint("Tangent", 1, 2, 2, 1),
    Sketcher.Constraint("Tangent", 2, 2, 3, 1),
    Sketcher.Constraint("Tangent", 3, 2, 0, 1),
    Sketcher.Constraint("Vertical", 0),
    Sketcher.Constraint("Vertical", 2),
    Sketcher.Constraint("Radius", 1, Q("1.5 mm")),
    Sketcher.Constraint("DistanceY", 0, 2, 0, 1, Q("22 mm")),
    Sketcher.Constraint("DistanceX", -1, 1, 1, 3, Q("14.9 mm")),
    Sketcher.Constraint("DistanceY", -1, 1, 1, 3, Q("14.5 mm")),
])
pocket16 = body.newObject("PartDesign::Pocket", "Pocket015")
pocket16.Profile = sketch18
pocket16.Type = "UpToFirst"

# Sketch on XY plane
sketch19 = body.newObject("Sketcher::SketchObject", "Sketch018")
sketch19.AttachmentSupport = (doc.getObject("XY_Plane"), [""])
sketch19.MapMode = "FlatFace"
sketch19.addGeometry([
    Part.LineSegment(V(16.472201, 1.75, 0), V(10.458261, 1.75, 0)),
    Part.ArcOfCircle(Part.Circle(V(-1.5, 0.75, 0), V(0, 0, 1), 12), math.radians(4.780192), math.radians(85.219808)),
    Part.LineSegment(V(-0.5, 12.708261, 0), V(-0.5, 18.722201, 0)),
    Part.ArcOfCircle(Part.Circle(V(-1.5, 0.75, 0), V(0, 0, 1), 18), math.radians(3.184739), math.radians(86.815261)),
], False)
sketch19.addConstraint([
    Sketcher.Constraint("Coincident", 0, 2, 1, 1),
    Sketcher.Constraint("Coincident", 1, 2, 2, 1),
    Sketcher.Constraint("Coincident", 2, 2, 3, 2),
    Sketcher.Constraint("Coincident", 3, 1, 0, 1),
    Sketcher.Constraint("Horizontal", 0),
    Sketcher.Constraint("Vertical", 2),
    Sketcher.Constraint("Coincident", 3, 3, 1, 3),
    Sketcher.Constraint("Equal", 0, 2),
    Sketcher.Constraint("Radius", 1, Q("12 mm")),
    Sketcher.Constraint("Radius", 3, Q("18 mm")),
    Sketcher.Constraint("DistanceY", 1, 3, 0, 2, Q("1 mm")),
    Sketcher.Constraint("DistanceX", 1, 3, -1, 1, Q("1.5 mm")),
    Sketcher.Constraint("DistanceY", -1, 1, 1, 3, Q("0.75 mm")),
])
pocket17 = body.newObject("PartDesign::Pocket", "Pocket016")
pocket17.Profile = sketch19
pocket17.Type = "ThroughAll"
pocket17.Reversed = True

# Sketch on XY plane
sketch20 = body.newObject("Sketcher::SketchObject", "Sketch019")
sketch20.AttachmentSupport = (doc.getObject("XY_Plane"), [""])
sketch20.MapMode = "FlatFace"
sketch20.AttachmentOffset = App.Placement(V(0, 0, 42), App.Rotation())
sketch20.addGeometry([
    Part.LineSegment(V(1.5, 25.1, 0), V(1.5, 23.6, 0)),
    Part.LineSegment(V(1.5, 23.6, 0), V(16.5, 23.6, 0)),
    Part.LineSegment(V(16.5, 23.6, 0), V(16.5, 25.1, 0)),
    Part.ArcOfCircle(Part.Circle(V(9, 25.1, 0), V(0, 0, 1), 7.5), math.radians(0), math.radians(180)),
], False)
sketch20.addConstraint([
    Sketcher.Constraint("Coincident", 0, 2, 1, 1),
    Sketcher.Constraint("Coincident", 1, 2, 2, 1),
    Sketcher.Constraint("Tangent", 2, 2, 3, 1),
    Sketcher.Constraint("Tangent", 3, 2, 0, 1),
    Sketcher.Constraint("Vertical", 0),
    Sketcher.Constraint("Horizontal", 1),
    Sketcher.Constraint("Vertical", 2),
    Sketcher.Constraint("Radius", 3, Q("7.5 mm")),
    Sketcher.Constraint("DistanceY", 0, 2, 0, 1, Q("1.5 mm")),
    Sketcher.Constraint("DistanceX", -1, 1, 3, 3, Q("9 mm")),
    Sketcher.Constraint("DistanceY", -1, 1, 3, 3, Q("25.1 mm")),
])
pad3 = body.newObject("PartDesign::Pad", "Pad002")
pad3.Profile = sketch20
pad3.Length = 0.8
pad3.Reversed = True

# Sketch on XY plane
sketch21 = body.newObject("Sketcher::SketchObject", "Sketch020")
sketch21.AttachmentSupport = (doc.getObject("XY_Plane"), [""])
sketch21.MapMode = "FlatFace"
sketch21.AttachmentOffset = App.Placement(V(0, 0, 42), App.Rotation())
sketch21.addGeometry([
    Part.LineSegment(V(24, 16.6, 0), V(22.5, 16.6, 0)),
    Part.LineSegment(V(22.5, 16.6, 0), V(22.5, 1.6, 0)),
    Part.LineSegment(V(22.5, 1.6, 0), V(24, 1.6, 0)),
    Part.ArcOfCircle(Part.Circle(V(24, 9.1, 0), V(0, 0, 1), 7.5), math.radians(-90), math.radians(90)),
], False)
sketch21.addConstraint([
    Sketcher.Constraint("Coincident", 0, 2, 1, 1),
    Sketcher.Constraint("Coincident", 1, 2, 2, 1),
    Sketcher.Constraint("Tangent", 2, 2, 3, 1),
    Sketcher.Constraint("Tangent", 3, 2, 0, 1),
    Sketcher.Constraint("Horizontal", 0),
    Sketcher.Constraint("Vertical", 1),
    Sketcher.Constraint("Horizontal", 2),
    Sketcher.Constraint("Radius", 3, Q("7.5 mm")),
    Sketcher.Constraint("DistanceX", 0, 2, 0, 1, Q("1.5 mm")),
    Sketcher.Constraint("DistanceX", -1, 1, 3, 3, Q("24 mm")),
    Sketcher.Constraint("DistanceY", -1, 1, 3, 3, Q("9.1 mm")),
])
pad4 = body.newObject("PartDesign::Pad", "Pad003")
pad4.Profile = sketch21
pad4.Length = 0.8
pad4.Reversed = True

# Sketch on YZ plane
sketch22 = body.newObject("Sketcher::SketchObject", "Sketch021")
sketch22.AttachmentSupport = (doc.getObject("YZ_Plane"), [""])
sketch22.MapMode = "FlatFace"
sketch22.AttachmentOffset = App.Placement(V(0, 0, -24.7), App.Rotation())
sketch22.addGeometry([
    Part.Circle(V(19, 40, 0), V(0, 0, 1), 1),
    Part.Circle(V(-16, 40, 0), V(0, 0, 1), 1),
    Part.Circle(V(-16, 5, 0), V(0, 0, 1), 1),
    Part.Circle(V(19, 5, 0), V(0, 0, 1), 1),
], False)
sketch22.addConstraint([
    Sketcher.Constraint("Equal", 0, 1),
    Sketcher.Constraint("Equal", 1, 2),
    Sketcher.Constraint("Equal", 2, 3),
    Sketcher.Constraint("Horizontal", 0, 3, 1, 3),
    Sketcher.Constraint("Horizontal", 2, 3, 3, 3),
    Sketcher.Constraint("Vertical", 1, 3, 2, 3),
    Sketcher.Constraint("Vertical", 0, 3, 3, 3),
    Sketcher.Constraint("Diameter", 0, Q("2 mm")),
    Sketcher.Constraint("DistanceX", -1, 1, 0, 3, Q("19 mm")),
    Sketcher.Constraint("DistanceY", -1, 1, 0, 3, Q("40 mm")),
    Sketcher.Constraint("DistanceX", 1, 3, -1, 1, Q("16 mm")),
    Sketcher.Constraint("DistanceY", -1, 1, 2, 3, Q("5 mm")),
])
doc.recompute()
hole = body.newObject("PartDesign::Hole", "Hole")
hole.Profile = sketch22
hole.ThreadType = "None"
hole.Diameter = 2
hole.DepthType = "Dimension"
hole.Depth = 0.8
hole.DrillPoint = "Flat"

# Sketch on XY plane
sketch23 = body.newObject("Sketcher::SketchObject", "Sketch022")
sketch23.AttachmentSupport = (doc.getObject("XY_Plane"), [""])
sketch23.MapMode = "FlatFace"
sketch23.AttachmentOffset = App.Placement(V(0, 0, 42), App.Rotation())
sketch23.addGeometry([
    Part.Circle(V(9, 28, 0), V(0, 0, 1), 2),
    Part.Circle(V(26.5, 9.1, 0), V(0, 0, 1), 2),
], False)
sketch23.addConstraint([
    Sketcher.Constraint("Equal", 0, 1),
    Sketcher.Constraint("Diameter", 0, Q("4 mm")),
    Sketcher.Constraint("DistanceX", -1, 1, 0, 3, Q("9 mm")),
    Sketcher.Constraint("DistanceY", -1, 1, 0, 3, Q("28 mm")),
    Sketcher.Constraint("DistanceX", -1, 1, 1, 3, Q("26.5 mm")),
    Sketcher.Constraint("DistanceY", -1, 1, 1, 3, Q("9.1 mm")),
])
doc.recompute()
hole2 = body.newObject("PartDesign::Hole", "Hole001")
hole2.Profile = sketch23
hole2.ThreadType = "None"
hole2.Diameter = 4
hole2.DepthType = "Dimension"
hole2.Depth = 42
hole2.DrillPoint = "Flat"
doc.recompute()

fillet = body.newObject("PartDesign::Fillet", "Fillet")
fillet.Base = (hole2, edges_at(hole2, [
    (21.7, 22.8, 21.4),
    (-25.5, 0.75, 0),
    (-1.5, -22.1, 0),
    (22.5, 0.75, 0),
    (-24.7, 22.8, 11.4),
    (22.5, -22.1, 21),
    (-25.5, -22.1, 5.5),
    (-25.5, 23.6, 22.5),
    (22.5, 23.6, 21),
    (-24.7, 0.75, 0.8),
    (-24.7, -21.3, 5.9),
    (-1.5, 22.8, 0.8),
    (-1.5, -21.3, 0.8),
    (-1.5, 23.6, 0),
    (21.7, -21.3, 21.4),
    (21.7, 0.75, 0.8),
]))
fillet.Radius = 0.5
doc.recompute()

fillet2 = body.newObject("PartDesign::Fillet", "Fillet001")
fillet2.Base = (fillet, edges_at(fillet, [(1.5, 23.2, 22)]))
fillet2.Radius = 2
doc.recompute()

fillet3 = body.newObject("PartDesign::Fillet", "Fillet002")
fillet3.Base = (fillet2, edges_at(fillet2, [(13.5, -21.7, 42), (13.5, -21.7, 11)]))
fillet3.Radius = 3
body2 = doc.addObject("PartDesign::Body", "Body001")

# Sketch on XY plane
sketch24 = body2.newObject("Sketcher::SketchObject", "Sketch023")
sketch24.AttachmentSupport = (doc.getObject("XY_Plane001"), [""])
sketch24.MapMode = "FlatFace"
sketch24.AttachmentOffset = App.Placement(V(0, 0, 0.8), App.Rotation())
sketch24.addGeometry([
    Part.Circle(V(-17.5, 16.8, 0), V(0, 0, 1), 2.7),
    Part.Circle(V(-17.5, 16.8, 0), V(0, 0, 1), 1.5),
], False)
sketch24.addConstraint([
    Sketcher.Constraint("Coincident", 1, 3, 0, 3),
    Sketcher.Constraint("Diameter", 1, Q("3 mm")),
    Sketcher.Constraint("Diameter", 0, Q("5.4 mm")),
    Sketcher.Constraint("DistanceX", 0, 3, -1, 1, Q("17.5 mm")),
    Sketcher.Constraint("DistanceY", -1, 1, 0, 3, Q("16.8 mm")),
])
pad5 = body2.newObject("PartDesign::Pad", "Pad004")
pad5.Profile = sketch24
pad5.Length = 4
body3 = doc.addObject("PartDesign::Body", "Body002")

# Sketch on XY plane
sketch25 = body3.newObject("Sketcher::SketchObject", "Sketch024")
sketch25.AttachmentSupport = (doc.getObject("XY_Plane002"), [""])
sketch25.MapMode = "FlatFace"
sketch25.AttachmentOffset = App.Placement(V(0, 0, 0.8), App.Rotation())
sketch25.addGeometry([
    Part.Circle(V(14.5, 16.8, 0), V(0, 0, 1), 2.7),
    Part.Circle(V(14.5, 16.8, 0), V(0, 0, 1), 1.5),
], False)
sketch25.addConstraint([
    Sketcher.Constraint("Coincident", 1, 3, 0, 3),
    Sketcher.Constraint("Diameter", 1, Q("3 mm")),
    Sketcher.Constraint("Diameter", 0, Q("5.4 mm")),
    Sketcher.Constraint("DistanceX", -1, 1, 0, 3, Q("14.5 mm")),
    Sketcher.Constraint("DistanceY", -1, 1, 0, 3, Q("16.8 mm")),
])
pad6 = body3.newObject("PartDesign::Pad", "Pad005")
pad6.Profile = sketch25
pad6.Length = 4
body4 = doc.addObject("PartDesign::Body", "Body003")

# Sketch on XY plane
sketch26 = body4.newObject("Sketcher::SketchObject", "Sketch025")
sketch26.AttachmentSupport = (doc.getObject("XY_Plane003"), [""])
sketch26.MapMode = "FlatFace"
sketch26.AttachmentOffset = App.Placement(V(0, 0, 0.8), App.Rotation())
sketch26.addGeometry([
    Part.Circle(V(-17.5, -15.2, 0), V(0, 0, 1), 2.7),
    Part.Circle(V(-17.5, -15.2, 0), V(0, 0, 1), 1.516813),
], False)
sketch26.addConstraint([
    Sketcher.Constraint("Coincident", 1, 3, 0, 3),
    Sketcher.Constraint("Diameter", 0, Q("5.4 mm")),
    Sketcher.Constraint("DistanceX", 0, 3, -1, 1, Q("17.5 mm")),
    Sketcher.Constraint("DistanceY", 0, 3, -1, 1, Q("15.2 mm")),
    Sketcher.Constraint("Diameter", 1, Q("3.033627 mm")),
])
pad7 = body4.newObject("PartDesign::Pad", "Pad006")
pad7.Profile = sketch26
pad7.Length = 4
body5 = doc.addObject("PartDesign::Body", "Body004")

# Sketch on XY plane
sketch27 = body5.newObject("Sketcher::SketchObject", "Sketch026")
sketch27.AttachmentSupport = (doc.getObject("XY_Plane004"), [""])
sketch27.MapMode = "FlatFace"
sketch27.AttachmentOffset = App.Placement(V(0, 0, 0.8), App.Rotation())
sketch27.addGeometry([
    Part.Circle(V(14.5, -15.2, 0), V(0, 0, 1), 2.7),
    Part.Circle(V(14.5, -15.2, 0), V(0, 0, 1), 1.5),
], False)
sketch27.addConstraint([
    Sketcher.Constraint("Coincident", 1, 3, 0, 3),
    Sketcher.Constraint("Diameter", 1, Q("3 mm")),
    Sketcher.Constraint("Diameter", 0, Q("5.4 mm")),
    Sketcher.Constraint("DistanceX", -1, 1, 0, 3, Q("14.5 mm")),
    Sketcher.Constraint("DistanceY", 0, 3, -1, 1, Q("15.2 mm")),
])
pad8 = body5.newObject("PartDesign::Pad", "Pad007")
pad8.Profile = sketch27
pad8.Length = 4

doc.recompute()
